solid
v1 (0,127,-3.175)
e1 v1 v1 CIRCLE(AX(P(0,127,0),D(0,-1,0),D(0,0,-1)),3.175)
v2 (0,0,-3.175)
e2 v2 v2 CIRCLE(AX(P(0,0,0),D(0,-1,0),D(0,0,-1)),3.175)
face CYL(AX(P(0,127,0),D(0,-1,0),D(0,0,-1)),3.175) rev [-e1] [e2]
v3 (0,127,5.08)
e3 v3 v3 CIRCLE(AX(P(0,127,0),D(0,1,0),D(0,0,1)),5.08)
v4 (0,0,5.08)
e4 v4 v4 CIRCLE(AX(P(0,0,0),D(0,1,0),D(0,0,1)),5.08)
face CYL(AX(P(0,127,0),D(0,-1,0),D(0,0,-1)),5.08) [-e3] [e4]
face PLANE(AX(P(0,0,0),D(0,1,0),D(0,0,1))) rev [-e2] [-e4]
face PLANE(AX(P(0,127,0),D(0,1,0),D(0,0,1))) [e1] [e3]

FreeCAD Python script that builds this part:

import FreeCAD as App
import Part
import Sketcher

V = App.Vector
Q = App.Units.Quantity

doc = App.newDocument("Part")
body = doc.addObject("PartDesign::Body", "Body")

sketch1 = body.newObject("Sketcher::SketchObject", "Sketch")
sketch1.AttachmentSupport = (doc.getObject("XZ_Plane"), [""])
sketch1.MapMode = "FlatFace"
sketch1.addGeometry(Part.Circle(V(0, 0, 0), V(0, 0, 1), 5.08), False)
sketch1.addConstraint([
    Sketcher.Constraint("Coincident", 0, 3, -1, 1),
    Sketcher.Constraint("Diameter", 0, Q("0.4 in")),
])
pad1 = body.newObject("PartDesign::Pad", "Pad")
pad1.Profile = sketch1
pad1.Length = Q("5 in")
pad1.Reversed = True

sketch2 = body.newObject("Sketcher::SketchObject", "Sketch001")
sketch2.AttachmentSupport = (doc.getObject("XZ_Plane"), [""])
sketch2.MapMode = "FlatFace"
sketch2.addGeometry(Part.Circle(V(0, 0, 0), V(0, 0, 1), 3.175), False)
sketch2.addConstraint([
    Sketcher.Constraint("Coincident", 0, 3, -1, 1),
    Sketcher.Constraint("Diameter", 0, Q("0.25 in")),
])
pocket1 = body.newObject("PartDesign::Pocket", "Pocket")
pocket1.Profile = sketch2
pocket1.Type = "ThroughAll"

doc.recompute()
